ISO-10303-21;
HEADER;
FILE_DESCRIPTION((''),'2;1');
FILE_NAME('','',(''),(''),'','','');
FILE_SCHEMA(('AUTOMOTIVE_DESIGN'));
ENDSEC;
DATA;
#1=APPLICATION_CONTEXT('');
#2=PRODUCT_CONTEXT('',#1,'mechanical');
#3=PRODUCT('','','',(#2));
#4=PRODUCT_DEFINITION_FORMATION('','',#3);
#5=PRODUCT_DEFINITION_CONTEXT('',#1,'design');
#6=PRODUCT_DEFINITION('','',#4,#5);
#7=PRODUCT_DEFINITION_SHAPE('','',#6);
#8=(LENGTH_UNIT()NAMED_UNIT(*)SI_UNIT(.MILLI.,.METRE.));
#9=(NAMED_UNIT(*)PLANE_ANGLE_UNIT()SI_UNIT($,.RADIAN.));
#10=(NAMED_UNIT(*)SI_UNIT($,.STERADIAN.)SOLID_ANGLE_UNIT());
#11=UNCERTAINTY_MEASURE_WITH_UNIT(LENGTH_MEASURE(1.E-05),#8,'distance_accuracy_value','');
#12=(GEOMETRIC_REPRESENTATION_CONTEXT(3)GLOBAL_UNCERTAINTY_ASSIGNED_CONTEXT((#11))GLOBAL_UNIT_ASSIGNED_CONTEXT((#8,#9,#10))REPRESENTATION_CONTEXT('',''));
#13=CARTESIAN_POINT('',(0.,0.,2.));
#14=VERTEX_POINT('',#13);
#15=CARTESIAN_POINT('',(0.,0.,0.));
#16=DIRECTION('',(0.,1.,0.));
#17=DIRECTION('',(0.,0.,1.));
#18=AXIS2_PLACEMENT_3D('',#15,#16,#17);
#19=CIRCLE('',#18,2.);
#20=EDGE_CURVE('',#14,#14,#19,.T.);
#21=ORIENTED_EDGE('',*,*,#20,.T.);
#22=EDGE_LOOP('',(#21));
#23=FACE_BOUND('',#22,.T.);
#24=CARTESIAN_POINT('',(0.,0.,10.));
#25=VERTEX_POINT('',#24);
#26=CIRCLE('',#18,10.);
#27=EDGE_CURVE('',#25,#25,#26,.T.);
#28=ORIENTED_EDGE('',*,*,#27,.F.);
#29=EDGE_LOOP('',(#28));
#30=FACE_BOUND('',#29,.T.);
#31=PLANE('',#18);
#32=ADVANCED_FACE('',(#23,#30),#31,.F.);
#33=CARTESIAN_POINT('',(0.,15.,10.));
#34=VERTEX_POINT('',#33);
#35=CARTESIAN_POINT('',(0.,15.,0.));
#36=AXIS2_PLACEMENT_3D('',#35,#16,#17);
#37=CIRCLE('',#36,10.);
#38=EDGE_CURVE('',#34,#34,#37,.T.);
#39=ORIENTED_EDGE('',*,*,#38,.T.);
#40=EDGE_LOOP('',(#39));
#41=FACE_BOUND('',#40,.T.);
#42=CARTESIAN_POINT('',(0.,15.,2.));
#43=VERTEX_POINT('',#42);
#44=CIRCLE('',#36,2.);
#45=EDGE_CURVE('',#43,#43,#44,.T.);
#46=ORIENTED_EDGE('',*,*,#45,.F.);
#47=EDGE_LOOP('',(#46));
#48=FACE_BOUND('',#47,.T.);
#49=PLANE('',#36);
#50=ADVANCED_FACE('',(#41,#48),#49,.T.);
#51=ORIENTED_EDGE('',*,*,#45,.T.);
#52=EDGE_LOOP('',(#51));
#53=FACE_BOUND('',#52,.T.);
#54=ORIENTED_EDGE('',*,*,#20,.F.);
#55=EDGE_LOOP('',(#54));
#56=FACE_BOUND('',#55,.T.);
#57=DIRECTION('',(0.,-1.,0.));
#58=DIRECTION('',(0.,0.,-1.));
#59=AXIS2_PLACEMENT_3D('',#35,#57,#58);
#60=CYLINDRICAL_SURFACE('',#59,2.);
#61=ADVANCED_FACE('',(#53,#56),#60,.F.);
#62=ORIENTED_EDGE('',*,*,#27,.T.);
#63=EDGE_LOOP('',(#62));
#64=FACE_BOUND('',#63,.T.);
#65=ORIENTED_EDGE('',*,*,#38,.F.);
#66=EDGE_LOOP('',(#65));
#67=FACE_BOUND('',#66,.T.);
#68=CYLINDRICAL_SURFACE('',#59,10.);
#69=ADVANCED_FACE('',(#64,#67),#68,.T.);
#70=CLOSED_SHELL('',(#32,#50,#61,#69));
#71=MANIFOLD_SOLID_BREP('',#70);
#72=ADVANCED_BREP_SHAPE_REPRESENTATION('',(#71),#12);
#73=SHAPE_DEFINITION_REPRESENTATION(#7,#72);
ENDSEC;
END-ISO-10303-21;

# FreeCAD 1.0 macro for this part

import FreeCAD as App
import Part
import Sketcher

V = App.Vector

doc = App.newDocument("Part")
body = doc.addObject("PartDesign::Body", "Body")

sketch1 = body.newObject("Sketcher::SketchObject", "Sketch")
sketch1.AttachmentSupport = (doc.getObject("XZ_Plane"), [""])
sketch1.MapMode = "FlatFace"
sketch1.addGeometry([
    Part.Circle(V(0, 0, 0), V(0, 0, 1), 10),
    Part.Circle(V(0, 0, 0), V(0, 0, 1), 2),
], False)
sketch1.addConstraint([
    Sketcher.Constraint("Coincident", 0, 3, -1, 1),
    Sketcher.Constraint("Coincident", 1, 3, -1, 1),
    Sketcher.Constraint("Diameter", 0, 20.0),
    Sketcher.Constraint("Diameter", 1, 4.0),
])
pad1 = body.newObject("PartDesign::Pad", "Pad")
pad1.Profile = sketch1
pad1.Length = 15
pad1.Reversed = True

doc.recompute()
